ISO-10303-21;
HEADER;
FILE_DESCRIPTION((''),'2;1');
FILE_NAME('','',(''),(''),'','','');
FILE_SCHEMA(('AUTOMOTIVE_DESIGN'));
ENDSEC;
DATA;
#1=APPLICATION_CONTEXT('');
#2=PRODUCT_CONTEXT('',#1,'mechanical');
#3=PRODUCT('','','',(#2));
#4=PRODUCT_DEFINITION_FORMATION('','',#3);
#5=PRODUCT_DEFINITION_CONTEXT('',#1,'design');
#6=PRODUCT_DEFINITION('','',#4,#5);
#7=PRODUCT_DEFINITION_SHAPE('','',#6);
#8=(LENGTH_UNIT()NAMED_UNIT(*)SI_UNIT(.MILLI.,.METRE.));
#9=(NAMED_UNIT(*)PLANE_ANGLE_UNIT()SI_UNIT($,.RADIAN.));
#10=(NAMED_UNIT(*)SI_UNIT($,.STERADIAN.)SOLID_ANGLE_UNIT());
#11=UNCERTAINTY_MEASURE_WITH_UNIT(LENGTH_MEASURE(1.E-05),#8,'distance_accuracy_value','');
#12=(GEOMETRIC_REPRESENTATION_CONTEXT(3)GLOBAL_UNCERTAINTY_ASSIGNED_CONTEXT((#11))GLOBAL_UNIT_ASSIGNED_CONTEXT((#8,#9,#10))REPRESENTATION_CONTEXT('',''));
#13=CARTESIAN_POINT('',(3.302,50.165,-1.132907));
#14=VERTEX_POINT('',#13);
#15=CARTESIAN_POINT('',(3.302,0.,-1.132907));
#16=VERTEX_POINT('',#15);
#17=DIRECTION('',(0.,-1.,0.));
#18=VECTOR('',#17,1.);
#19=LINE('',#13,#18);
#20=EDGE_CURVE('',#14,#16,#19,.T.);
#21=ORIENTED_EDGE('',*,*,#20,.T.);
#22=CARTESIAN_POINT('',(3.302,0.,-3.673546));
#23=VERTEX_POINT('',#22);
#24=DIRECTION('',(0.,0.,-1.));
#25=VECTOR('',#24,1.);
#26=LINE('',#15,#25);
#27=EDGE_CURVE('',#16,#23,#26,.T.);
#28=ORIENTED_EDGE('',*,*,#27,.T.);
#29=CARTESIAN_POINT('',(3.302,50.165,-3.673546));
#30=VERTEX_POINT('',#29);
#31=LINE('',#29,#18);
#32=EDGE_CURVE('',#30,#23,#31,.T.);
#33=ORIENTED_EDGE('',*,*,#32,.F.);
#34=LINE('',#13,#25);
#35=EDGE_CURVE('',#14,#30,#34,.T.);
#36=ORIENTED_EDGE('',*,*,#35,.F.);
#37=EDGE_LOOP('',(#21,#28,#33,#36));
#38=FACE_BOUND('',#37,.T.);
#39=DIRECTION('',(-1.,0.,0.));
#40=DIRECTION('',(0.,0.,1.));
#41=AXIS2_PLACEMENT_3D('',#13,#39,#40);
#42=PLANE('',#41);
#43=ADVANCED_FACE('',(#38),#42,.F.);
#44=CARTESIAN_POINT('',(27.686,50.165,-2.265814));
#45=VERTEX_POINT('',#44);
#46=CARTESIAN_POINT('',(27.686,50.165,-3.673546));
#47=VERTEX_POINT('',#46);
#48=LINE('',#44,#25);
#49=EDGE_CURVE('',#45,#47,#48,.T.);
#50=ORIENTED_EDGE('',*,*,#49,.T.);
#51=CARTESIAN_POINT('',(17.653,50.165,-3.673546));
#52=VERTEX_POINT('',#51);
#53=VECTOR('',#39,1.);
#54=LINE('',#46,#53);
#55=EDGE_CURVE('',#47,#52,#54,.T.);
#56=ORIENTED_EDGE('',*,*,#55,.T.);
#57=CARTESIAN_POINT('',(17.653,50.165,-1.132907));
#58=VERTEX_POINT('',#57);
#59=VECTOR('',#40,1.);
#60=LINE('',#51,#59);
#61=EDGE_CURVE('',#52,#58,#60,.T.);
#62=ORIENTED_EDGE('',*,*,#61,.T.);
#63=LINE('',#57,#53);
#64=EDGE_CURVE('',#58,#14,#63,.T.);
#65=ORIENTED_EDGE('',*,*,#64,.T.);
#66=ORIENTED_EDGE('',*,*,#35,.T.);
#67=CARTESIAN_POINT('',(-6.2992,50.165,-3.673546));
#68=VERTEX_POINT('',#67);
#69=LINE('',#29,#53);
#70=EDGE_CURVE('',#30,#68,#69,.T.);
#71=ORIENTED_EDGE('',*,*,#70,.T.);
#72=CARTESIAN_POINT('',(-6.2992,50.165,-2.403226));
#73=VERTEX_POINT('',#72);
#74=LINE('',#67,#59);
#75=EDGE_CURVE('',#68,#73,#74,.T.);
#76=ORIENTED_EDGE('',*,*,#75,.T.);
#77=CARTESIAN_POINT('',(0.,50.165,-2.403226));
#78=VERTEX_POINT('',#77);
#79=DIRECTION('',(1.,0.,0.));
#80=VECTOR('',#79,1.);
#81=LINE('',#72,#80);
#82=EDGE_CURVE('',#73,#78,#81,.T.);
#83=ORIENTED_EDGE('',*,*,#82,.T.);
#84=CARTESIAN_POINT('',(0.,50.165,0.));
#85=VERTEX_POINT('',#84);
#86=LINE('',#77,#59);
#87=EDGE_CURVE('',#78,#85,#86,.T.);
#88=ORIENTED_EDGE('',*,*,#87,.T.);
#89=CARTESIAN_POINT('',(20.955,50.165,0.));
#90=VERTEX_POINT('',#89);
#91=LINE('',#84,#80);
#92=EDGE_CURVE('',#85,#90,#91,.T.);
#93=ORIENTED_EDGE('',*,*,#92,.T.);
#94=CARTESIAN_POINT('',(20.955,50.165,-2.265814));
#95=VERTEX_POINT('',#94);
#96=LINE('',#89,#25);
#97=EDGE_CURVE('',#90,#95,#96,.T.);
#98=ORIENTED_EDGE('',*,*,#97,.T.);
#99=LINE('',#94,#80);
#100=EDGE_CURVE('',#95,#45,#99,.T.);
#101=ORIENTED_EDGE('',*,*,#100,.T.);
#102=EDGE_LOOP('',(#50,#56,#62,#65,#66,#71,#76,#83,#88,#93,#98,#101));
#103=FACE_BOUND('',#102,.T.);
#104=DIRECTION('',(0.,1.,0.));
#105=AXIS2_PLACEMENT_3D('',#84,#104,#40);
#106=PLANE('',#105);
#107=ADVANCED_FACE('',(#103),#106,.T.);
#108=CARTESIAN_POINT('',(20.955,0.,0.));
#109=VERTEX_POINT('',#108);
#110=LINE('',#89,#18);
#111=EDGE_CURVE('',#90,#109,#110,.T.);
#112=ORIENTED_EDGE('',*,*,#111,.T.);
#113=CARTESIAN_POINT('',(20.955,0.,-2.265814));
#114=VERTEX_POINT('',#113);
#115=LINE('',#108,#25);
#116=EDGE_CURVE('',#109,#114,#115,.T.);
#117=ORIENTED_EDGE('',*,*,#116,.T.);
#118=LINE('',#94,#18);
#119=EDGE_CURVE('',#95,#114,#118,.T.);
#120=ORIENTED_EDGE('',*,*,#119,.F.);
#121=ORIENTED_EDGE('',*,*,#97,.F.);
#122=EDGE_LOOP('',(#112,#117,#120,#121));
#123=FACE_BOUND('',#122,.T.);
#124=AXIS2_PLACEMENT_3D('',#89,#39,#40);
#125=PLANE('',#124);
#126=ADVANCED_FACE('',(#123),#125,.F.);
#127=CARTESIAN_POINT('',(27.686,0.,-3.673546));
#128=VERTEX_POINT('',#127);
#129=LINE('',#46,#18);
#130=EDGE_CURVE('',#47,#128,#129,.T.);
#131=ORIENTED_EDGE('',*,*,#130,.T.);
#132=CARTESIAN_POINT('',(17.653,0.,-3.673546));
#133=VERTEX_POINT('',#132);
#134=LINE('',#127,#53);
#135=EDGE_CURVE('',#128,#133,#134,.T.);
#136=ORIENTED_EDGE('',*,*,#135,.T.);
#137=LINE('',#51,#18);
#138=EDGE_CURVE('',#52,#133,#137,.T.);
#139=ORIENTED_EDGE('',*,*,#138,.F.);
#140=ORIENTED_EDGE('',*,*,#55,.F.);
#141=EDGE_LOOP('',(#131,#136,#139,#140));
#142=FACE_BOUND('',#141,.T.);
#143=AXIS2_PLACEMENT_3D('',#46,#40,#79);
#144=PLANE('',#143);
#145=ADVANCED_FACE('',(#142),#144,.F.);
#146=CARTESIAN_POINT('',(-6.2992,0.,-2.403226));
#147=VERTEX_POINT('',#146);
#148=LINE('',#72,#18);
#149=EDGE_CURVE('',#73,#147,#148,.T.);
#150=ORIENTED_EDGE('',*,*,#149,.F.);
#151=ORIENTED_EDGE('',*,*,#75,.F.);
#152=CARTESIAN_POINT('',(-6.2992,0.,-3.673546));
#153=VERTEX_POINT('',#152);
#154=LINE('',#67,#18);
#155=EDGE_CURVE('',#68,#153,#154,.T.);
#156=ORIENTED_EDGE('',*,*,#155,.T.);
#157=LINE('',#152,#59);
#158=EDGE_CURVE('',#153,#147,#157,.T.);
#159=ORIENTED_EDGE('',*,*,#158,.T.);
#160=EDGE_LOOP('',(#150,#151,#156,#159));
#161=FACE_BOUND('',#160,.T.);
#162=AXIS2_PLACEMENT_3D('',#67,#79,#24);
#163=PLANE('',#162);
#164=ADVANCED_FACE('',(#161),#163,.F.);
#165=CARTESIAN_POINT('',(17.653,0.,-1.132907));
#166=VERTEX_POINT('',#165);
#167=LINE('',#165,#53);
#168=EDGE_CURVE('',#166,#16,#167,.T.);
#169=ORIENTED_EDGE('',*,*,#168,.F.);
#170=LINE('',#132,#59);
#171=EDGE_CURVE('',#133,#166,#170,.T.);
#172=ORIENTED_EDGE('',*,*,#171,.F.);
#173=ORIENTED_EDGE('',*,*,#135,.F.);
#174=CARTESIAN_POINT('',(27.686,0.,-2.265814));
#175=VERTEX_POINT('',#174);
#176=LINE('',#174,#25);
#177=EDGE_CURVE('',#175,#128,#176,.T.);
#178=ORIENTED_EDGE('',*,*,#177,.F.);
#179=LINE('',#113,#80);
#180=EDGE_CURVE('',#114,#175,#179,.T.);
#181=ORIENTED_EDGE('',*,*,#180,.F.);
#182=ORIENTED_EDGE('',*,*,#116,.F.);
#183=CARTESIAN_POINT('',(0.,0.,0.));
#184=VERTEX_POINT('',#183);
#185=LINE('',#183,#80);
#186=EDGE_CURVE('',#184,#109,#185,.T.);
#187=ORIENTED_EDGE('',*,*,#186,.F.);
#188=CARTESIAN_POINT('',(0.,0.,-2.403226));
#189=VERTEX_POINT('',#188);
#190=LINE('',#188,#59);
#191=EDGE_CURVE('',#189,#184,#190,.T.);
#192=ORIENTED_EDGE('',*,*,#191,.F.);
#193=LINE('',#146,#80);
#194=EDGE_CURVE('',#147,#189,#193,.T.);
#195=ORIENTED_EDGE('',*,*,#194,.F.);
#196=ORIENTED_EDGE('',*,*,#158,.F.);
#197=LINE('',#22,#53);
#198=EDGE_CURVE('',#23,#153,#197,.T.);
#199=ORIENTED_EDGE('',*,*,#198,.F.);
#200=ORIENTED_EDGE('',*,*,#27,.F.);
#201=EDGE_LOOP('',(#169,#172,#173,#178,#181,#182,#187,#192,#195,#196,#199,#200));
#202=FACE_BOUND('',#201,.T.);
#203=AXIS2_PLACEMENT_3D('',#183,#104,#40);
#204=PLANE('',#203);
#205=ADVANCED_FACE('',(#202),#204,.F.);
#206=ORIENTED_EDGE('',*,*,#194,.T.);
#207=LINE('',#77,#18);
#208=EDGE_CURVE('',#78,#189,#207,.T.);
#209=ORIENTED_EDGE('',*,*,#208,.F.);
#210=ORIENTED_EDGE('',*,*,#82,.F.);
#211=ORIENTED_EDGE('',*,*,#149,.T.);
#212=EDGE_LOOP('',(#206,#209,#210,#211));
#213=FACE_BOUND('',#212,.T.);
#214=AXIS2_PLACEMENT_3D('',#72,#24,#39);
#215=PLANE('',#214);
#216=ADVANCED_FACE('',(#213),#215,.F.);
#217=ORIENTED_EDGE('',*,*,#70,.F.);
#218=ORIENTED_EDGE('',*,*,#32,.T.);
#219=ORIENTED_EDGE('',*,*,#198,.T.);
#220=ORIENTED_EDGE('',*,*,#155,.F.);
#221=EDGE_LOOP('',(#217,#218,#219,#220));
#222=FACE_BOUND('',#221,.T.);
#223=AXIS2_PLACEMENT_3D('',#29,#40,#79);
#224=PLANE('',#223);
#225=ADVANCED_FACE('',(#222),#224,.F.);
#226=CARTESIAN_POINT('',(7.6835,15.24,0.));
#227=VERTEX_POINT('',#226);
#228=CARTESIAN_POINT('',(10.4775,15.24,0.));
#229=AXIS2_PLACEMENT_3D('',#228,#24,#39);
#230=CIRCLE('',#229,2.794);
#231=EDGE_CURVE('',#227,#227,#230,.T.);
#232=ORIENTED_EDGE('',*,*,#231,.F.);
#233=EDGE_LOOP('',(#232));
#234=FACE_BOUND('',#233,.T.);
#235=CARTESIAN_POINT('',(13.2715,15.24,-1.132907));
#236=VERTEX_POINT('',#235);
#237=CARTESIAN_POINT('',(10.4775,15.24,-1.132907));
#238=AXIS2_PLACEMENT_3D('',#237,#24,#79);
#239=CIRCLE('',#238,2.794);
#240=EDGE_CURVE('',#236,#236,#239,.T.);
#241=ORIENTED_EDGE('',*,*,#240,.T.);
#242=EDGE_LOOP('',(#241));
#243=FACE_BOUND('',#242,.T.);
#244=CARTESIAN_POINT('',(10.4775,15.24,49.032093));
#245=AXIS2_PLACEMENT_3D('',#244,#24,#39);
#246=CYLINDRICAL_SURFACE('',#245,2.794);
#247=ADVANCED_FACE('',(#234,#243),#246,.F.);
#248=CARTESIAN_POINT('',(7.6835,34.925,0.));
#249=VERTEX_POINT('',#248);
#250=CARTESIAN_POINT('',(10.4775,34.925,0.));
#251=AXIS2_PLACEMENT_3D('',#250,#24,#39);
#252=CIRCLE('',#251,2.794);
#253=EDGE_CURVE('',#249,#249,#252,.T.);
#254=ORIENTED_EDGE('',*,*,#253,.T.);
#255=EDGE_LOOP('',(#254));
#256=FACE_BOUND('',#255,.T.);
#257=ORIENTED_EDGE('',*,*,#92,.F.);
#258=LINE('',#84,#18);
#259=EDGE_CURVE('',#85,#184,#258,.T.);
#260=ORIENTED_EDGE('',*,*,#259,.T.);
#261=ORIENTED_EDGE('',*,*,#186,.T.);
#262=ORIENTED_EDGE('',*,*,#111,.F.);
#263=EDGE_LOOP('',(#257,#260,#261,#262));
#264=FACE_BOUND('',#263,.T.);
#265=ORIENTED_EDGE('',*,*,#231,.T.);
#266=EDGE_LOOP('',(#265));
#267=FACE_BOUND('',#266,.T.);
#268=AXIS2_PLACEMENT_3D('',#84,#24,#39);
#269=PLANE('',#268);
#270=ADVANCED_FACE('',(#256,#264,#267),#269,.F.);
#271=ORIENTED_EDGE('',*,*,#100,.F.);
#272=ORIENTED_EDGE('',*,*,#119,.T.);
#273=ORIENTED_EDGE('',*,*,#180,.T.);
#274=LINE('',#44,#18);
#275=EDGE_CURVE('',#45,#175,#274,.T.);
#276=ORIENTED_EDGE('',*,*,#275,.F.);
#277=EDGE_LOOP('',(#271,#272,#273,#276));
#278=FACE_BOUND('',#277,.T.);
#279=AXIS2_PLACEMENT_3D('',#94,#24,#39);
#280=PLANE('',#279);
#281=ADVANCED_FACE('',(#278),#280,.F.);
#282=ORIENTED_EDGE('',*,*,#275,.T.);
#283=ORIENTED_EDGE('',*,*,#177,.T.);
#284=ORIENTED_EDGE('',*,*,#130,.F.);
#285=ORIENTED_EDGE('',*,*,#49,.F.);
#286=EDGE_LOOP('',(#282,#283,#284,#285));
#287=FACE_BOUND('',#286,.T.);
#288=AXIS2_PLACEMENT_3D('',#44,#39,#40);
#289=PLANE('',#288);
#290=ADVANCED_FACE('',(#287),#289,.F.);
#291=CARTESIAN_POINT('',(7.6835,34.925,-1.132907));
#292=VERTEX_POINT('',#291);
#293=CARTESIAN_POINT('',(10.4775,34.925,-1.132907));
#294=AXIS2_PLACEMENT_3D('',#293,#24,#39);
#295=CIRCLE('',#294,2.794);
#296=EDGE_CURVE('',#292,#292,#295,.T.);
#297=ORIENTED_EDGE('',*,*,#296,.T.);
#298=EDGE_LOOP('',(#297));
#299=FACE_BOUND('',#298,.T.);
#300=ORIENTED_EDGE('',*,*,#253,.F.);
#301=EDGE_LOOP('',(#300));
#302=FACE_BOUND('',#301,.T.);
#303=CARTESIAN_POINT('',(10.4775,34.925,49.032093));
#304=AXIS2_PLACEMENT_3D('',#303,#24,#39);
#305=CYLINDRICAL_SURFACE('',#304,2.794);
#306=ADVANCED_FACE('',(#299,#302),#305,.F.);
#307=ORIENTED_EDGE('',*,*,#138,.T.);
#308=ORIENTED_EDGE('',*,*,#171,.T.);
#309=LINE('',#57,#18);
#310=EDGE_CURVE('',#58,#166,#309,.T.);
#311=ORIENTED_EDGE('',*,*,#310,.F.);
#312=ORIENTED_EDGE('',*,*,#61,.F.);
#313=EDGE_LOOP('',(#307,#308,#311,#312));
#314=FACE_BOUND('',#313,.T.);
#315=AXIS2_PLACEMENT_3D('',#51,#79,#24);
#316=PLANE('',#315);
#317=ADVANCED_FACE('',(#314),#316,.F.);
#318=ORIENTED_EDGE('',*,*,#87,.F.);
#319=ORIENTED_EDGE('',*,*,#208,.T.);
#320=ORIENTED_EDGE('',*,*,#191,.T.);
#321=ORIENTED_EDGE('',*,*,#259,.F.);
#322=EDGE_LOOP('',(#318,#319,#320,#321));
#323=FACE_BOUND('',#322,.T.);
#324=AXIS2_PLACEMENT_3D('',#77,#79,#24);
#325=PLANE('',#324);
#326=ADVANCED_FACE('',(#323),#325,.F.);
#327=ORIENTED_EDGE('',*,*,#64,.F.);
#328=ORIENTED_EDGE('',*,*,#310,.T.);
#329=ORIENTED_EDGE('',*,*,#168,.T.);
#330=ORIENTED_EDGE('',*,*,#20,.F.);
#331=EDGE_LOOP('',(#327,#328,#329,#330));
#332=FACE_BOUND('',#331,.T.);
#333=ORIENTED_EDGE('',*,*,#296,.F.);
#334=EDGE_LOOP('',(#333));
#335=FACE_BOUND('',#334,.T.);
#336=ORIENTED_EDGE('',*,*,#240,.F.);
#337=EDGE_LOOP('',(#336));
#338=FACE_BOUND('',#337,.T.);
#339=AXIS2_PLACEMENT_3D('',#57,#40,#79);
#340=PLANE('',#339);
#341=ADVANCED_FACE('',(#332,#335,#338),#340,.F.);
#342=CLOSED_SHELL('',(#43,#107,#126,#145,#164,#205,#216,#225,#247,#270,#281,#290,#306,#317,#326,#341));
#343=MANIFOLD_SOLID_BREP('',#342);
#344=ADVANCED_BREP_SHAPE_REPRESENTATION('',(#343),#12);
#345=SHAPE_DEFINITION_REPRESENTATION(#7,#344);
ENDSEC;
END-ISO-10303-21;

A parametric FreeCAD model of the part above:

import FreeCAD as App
import Part
import Sketcher
from FreeCAD import Vector
Q = App.Units.Quantity


def add_polygon(sketch, points):
    """Adds a closed chain of lines whose ends are joined by coincident constraints."""
    first, n = sketch.GeometryCount, len(points)
    for a, b in zip(points, points[1:] + points[:1]):
        sketch.addGeometry(Part.LineSegment(App.Vector(*a, 0), App.Vector(*b, 0)), False)
    for i in range(n):
        sketch.addConstraint(Sketcher.Constraint("Coincident", first + i, 2, first + (i + 1) % n, 1))

doc = App.newDocument("Part")
body = doc.addObject("PartDesign::Body", "Body")

# Sketch on XZ plane
sketch1 = doc.addObject("Sketcher::SketchObject", "Sketch")
body.addObject(sketch1)
sketch1.AttachmentSupport = (doc.XZ_Plane, [""])
sketch1.MapMode = "FlatFace"
add_polygon(sketch1, [(0, 0), (21, 0), (21, -2.3), (27.7, -2.3), (27.7, -3.7), (17.7, -3.7), (17.7, -1.1), (3.3, -1.1), (3.3, -3.7), (-6.3, -3.7), (-6.3, -2.4), (0, -2.4)])  # lines 0-11
sketch1.addConstraint([
    Sketcher.Constraint("Horizontal", 0),
    Sketcher.Constraint("Vertical", 1),
    Sketcher.Constraint("Horizontal", 2),
    Sketcher.Constraint("Vertical", 3),
    Sketcher.Constraint("Horizontal", 4),
    Sketcher.Constraint("Vertical", 5),
    Sketcher.Constraint("Horizontal", 6),
    Sketcher.Constraint("Vertical", 7),
    Sketcher.Constraint("Horizontal", 8),
    Sketcher.Constraint("Vertical", 9),
    Sketcher.Constraint("Horizontal", 10),
    Sketcher.Constraint("Vertical", 11),
    Sketcher.Constraint("Coincident", 11, 2, -1, 1),
    Sketcher.Constraint("Horizontal", 4, 2, 7, 2),
    Sketcher.Constraint("DistanceX", 0, 1, 0, 2, Q("0.825 in")),
    Sketcher.Constraint("DistanceX", 2, 1, 2, 2, Q("0.265 in")),
    Sketcher.Constraint("DistanceX", 4, 2, 4, 1, Q("0.395 in")),
    Sketcher.Constraint("DistanceX", 6, 2, 6, 1, Q("0.565 in")),
    Sketcher.Constraint("DistanceX", 8, 2, 8, 1, Q("0.378 in")),
    Sketcher.Constraint("DistanceY", 3, 2, 3, 1, 1.407731),
    Sketcher.Constraint("DistanceY", 5, 1, 5, 2, 2.540639),
    Sketcher.Constraint("DistanceY", 9, 1, 9, 2, 1.270319),
    Sketcher.Constraint("DistanceY", 1, 2, 1, 1, 2.265814),
])
pad1 = doc.addObject("PartDesign::Pad", "Pad")
body.addObject(pad1)
pad1.Profile = sketch1
pad1.Length = Q("1.975 in")
pad1.Reversed = True

# Sketch on XY plane
sketch2 = doc.addObject("Sketcher::SketchObject", "Sketch001")
body.addObject(sketch2)
sketch2.AttachmentSupport = (doc.XY_Plane, [""])
sketch2.MapMode = "FlatFace"
sketch2.AttachmentOffset = App.Placement(Vector(0, 0, -1.132907), App.Rotation())
sketch2.addGeometry([
    Part.Circle(Vector(10.5, 34.9, 0), Vector(0, 0, 1), 2.8),
    Part.Circle(Vector(10.5, 15.2, 0), Vector(0, 0, 1), 2.8),
], False)
sketch2.addConstraint([
    Sketcher.Constraint("Equal", 0, 1),
    Sketcher.Constraint("Vertical", 0, 3, 1, 3),
    Sketcher.Constraint("Diameter", 0, Q("0.22 in")),
    Sketcher.Constraint("DistanceY", -1, 1, 1, 3, Q("0.6 in")),
    Sketcher.Constraint("DistanceY", -1, 1, 0, 3, Q("1.375 in")),
    Sketcher.Constraint("DistanceX", -1, 1, 0, 3, Q("0.4125 in")),
])
pocket1 = doc.addObject("PartDesign::Pocket", "Pocket")
body.addObject(pocket1)
pocket1.Profile = sketch2
pocket1.Length = Q("1.975 in")
pocket1.Reversed = True

doc.recompute()
